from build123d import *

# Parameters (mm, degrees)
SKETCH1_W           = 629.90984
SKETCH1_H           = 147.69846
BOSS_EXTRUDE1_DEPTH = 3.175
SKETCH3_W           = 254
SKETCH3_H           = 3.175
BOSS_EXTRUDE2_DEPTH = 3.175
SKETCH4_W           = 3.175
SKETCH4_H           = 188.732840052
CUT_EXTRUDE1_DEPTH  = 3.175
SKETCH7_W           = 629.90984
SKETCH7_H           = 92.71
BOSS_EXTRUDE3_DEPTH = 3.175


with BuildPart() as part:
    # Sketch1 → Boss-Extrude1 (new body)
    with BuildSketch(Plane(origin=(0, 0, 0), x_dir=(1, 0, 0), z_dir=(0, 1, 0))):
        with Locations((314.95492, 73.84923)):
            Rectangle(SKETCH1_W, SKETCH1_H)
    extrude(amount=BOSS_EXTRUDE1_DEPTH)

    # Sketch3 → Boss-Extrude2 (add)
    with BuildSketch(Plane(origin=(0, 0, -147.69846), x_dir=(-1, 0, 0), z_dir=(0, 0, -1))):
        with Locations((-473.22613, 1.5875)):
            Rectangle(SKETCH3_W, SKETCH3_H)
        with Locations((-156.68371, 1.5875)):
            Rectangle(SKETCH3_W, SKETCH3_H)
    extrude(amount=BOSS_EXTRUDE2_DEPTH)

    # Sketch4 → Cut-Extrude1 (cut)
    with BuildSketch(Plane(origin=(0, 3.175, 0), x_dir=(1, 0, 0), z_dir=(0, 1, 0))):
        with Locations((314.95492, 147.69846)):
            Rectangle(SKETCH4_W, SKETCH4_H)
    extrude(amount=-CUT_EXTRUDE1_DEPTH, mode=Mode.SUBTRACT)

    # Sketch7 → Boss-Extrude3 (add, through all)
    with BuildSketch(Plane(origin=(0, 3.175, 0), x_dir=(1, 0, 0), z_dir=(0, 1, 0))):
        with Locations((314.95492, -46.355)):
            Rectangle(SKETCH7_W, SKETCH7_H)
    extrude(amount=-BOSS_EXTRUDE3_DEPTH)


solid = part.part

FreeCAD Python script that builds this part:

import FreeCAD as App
import Part
import Sketcher
Q = App.Units.Quantity


def add_polygon(sketch, points):
    """Adds a closed chain of lines whose ends are joined by coincident constraints."""
    first, n = sketch.GeometryCount, len(points)
    for a, b in zip(points, points[1:] + points[:1]):
        sketch.addGeometry(Part.LineSegment(App.Vector(*a, 0), App.Vector(*b, 0)), False)
    for i in range(n):
        sketch.addConstraint(Sketcher.Constraint("Coincident", first + i, 2, first + (i + 1) % n, 1))

doc = App.newDocument("Part")
body = doc.addObject("PartDesign::Body", "Body")

sketch1 = body.newObject("Sketcher::SketchObject", "Sketch")
sketch1.AttachmentSupport = (doc.getObject("XZ_Plane"), [""])
sketch1.MapMode = "FlatFace"
add_polygon(sketch1, [(0, -148), (0, 0), (630, 0), (630, -148)])
sketch1.addConstraint([
    Sketcher.Constraint("Vertical", 0),
    Sketcher.Constraint("Horizontal", 1),
    Sketcher.Constraint("Vertical", 2),
    Sketcher.Constraint("Horizontal", 3),
    Sketcher.Constraint("Coincident", 0, 2, -1, 1),
    Sketcher.Constraint("DistanceX", 1, 1, 1, 2, Q("24.7996 in")),
    Sketcher.Constraint("DistanceY", 0, 1, 0, 2, Q("5.8149 in")),
])
pad1 = body.newObject("PartDesign::Pad", "Pad")
pad1.Profile = sketch1
pad1.Length = Q("0.125 in")
pad1.Reversed = True

sketch2 = body.newObject("Sketcher::SketchObject", "Sketch001")
sketch2.AttachmentSupport = (doc.getObject("XY_Plane"), [""])
sketch2.MapMode = "FlatFace"
sketch2.AttachmentOffset = App.Placement(App.Vector(0, 0, -5.8149 * 25.4), App.Rotation())
add_polygon(sketch2, [(600.2, 3.2), (600.2, 0), (346.2, 0), (346.2, 3.2)])
add_polygon(sketch2, [(283.7, 3.2), (283.7, 0), (29.7, 0), (29.7, 3.2)])
sketch2.addConstraint([
    Sketcher.Constraint("Vertical", 0),
    Sketcher.Constraint("Horizontal", 1),
    Sketcher.Constraint("Vertical", 2),
    Sketcher.Constraint("Horizontal", 3),
    Sketcher.Constraint("Vertical", 4),
    Sketcher.Constraint("Horizontal", 5),
    Sketcher.Constraint("Vertical", 6),
    Sketcher.Constraint("Horizontal", 7),
    Sketcher.Constraint("PointOnObject", 0, 2, -1),
    Sketcher.Constraint("PointOnObject", 4, 2, -1),
    Sketcher.Constraint("Horizontal", 3, 2, 6, 2),
    Sketcher.Constraint("Equal", 3, 5),
    Sketcher.Constraint("DistanceX", 1, 2, 1, 1, Q("10 in")),
    Sketcher.Constraint("DistanceY", 0, 2, 0, 1, Q("0.125 in")),
    Sketcher.Constraint("DistanceX", 4, 2, 1, 2, Q("2.4623 in")),
    Sketcher.Constraint("DistanceX", -1, 1, 0, 2, 600.22613),
])
pad2 = body.newObject("PartDesign::Pad", "Pad001")
pad2.Profile = sketch2
pad2.Length = Q("0.125 in")
pad2.Reversed = True

sketch3 = body.newObject("Sketcher::SketchObject", "Sketch002")
sketch3.AttachmentSupport = (doc.getObject("XZ_Plane"), [""])
sketch3.MapMode = "FlatFace"
sketch3.AttachmentOffset = App.Placement(App.Vector(0, 0, -0.125 * 25.4), App.Rotation())
add_polygon(sketch3, [(313.4, -242.1), (313.4, -53.3), (316.5, -53.3), (316.5, -242.1)])
sketch3.addConstraint([
    Sketcher.Constraint("Vertical", 0),
    Sketcher.Constraint("Horizontal", 1),
    Sketcher.Constraint("Vertical", 2),
    Sketcher.Constraint("Horizontal", 3),
    Sketcher.Constraint("DistanceX", 1, 1, 1, 2, Q("0.125 in")),
    Sketcher.Constraint("DistanceX", -1, 1, 0, 2, Q("12.3373 in")),
    Sketcher.Constraint("DistanceY", 0, 1, 0, 2, 188.73284),
    Sketcher.Constraint("DistanceY", 0, 2, -1, 1, 53.33204),
])
pocket1 = body.newObject("PartDesign::Pocket", "Pocket")
pocket1.Profile = sketch3
pocket1.Length = Q("0.125 in")
pocket1.Reversed = True

sketch4 = body.newObject("Sketcher::SketchObject", "Sketch003")
sketch4.AttachmentSupport = (doc.getObject("XZ_Plane"), [""])
sketch4.MapMode = "FlatFace"
sketch4.AttachmentOffset = App.Placement(App.Vector(0, 0, -0.125 * 25.4), App.Rotation())
add_polygon(sketch4, [(0, 0), (0, 93), (630, 93), (630, 0)])
sketch4.addConstraint([
    Sketcher.Constraint("Vertical", 0),
    Sketcher.Constraint("Horizontal", 1),
    Sketcher.Constraint("Vertical", 2),
    Sketcher.Constraint("Horizontal", 3),
    Sketcher.Constraint("Coincident", 3, 2, -1, 1),
    Sketcher.Constraint("DistanceY", 0, 1, 0, 2, Q("3.65 in")),
    Sketcher.Constraint("DistanceX", 1, 1, 1, 2, Q("24.7996 in")),
])
pad3 = body.newObject("PartDesign::Pad", "Pad002")
pad3.Profile = sketch4
pad3.Length = Q("0.125 in")

doc.recompute()
